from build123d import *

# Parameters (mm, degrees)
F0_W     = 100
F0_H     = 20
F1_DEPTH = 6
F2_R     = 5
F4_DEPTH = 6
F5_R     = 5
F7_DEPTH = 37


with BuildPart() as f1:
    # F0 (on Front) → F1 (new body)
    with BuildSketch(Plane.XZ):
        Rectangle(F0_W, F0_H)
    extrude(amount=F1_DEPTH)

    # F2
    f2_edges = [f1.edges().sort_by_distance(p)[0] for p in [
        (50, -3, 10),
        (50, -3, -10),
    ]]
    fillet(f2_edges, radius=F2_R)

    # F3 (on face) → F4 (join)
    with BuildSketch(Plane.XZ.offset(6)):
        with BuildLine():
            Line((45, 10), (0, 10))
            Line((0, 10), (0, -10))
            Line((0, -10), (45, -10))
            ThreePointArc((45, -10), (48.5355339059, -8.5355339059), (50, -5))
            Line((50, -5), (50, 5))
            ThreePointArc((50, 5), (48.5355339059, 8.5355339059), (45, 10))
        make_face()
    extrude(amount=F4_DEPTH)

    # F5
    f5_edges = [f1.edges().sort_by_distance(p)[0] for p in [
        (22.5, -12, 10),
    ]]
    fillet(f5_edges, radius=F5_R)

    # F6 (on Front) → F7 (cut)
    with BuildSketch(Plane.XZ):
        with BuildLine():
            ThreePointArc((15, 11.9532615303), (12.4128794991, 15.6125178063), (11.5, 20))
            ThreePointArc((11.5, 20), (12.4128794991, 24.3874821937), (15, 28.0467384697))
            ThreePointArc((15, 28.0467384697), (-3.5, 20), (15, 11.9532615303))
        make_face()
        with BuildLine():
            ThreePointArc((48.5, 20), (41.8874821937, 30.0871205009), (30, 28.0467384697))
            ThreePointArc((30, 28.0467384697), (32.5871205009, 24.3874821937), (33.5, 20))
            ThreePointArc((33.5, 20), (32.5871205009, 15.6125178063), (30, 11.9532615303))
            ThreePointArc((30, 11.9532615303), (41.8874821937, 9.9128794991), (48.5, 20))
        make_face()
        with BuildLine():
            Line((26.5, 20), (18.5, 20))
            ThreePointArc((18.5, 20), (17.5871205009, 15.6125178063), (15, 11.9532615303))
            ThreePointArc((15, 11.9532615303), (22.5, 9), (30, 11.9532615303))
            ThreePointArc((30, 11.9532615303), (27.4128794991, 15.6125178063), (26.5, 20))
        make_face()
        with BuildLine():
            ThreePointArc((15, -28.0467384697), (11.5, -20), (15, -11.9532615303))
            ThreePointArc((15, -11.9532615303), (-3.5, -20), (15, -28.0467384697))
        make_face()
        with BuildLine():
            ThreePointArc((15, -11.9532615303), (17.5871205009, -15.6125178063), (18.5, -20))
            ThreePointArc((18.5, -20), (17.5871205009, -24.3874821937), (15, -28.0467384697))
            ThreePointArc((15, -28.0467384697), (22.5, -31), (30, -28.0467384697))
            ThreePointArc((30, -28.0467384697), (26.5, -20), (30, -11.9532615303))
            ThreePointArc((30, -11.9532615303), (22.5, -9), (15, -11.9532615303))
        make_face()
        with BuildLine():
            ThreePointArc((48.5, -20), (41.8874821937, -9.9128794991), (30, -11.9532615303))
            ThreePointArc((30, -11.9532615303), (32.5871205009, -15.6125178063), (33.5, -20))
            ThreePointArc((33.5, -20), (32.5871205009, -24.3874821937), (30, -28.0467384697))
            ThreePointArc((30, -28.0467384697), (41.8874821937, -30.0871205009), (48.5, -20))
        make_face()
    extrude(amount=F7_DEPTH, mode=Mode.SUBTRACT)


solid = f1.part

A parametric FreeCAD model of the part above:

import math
import FreeCAD as App
import Part
import Sketcher
from FreeCAD import Vector


def edges_at(feature, points):
    """Names of the edges that pass closest to the given points."""
    edges = feature.Shape.Edges
    near = lambda p: min(range(len(edges)), key=lambda i: edges[i].distToShape(Part.Vertex(*p))[0])
    return sorted({f"Edge{near(p) + 1}" for p in points})

doc = App.newDocument("Part")
body = doc.addObject("PartDesign::Body", "Body")

sketch1 = body.newObject("Sketcher::SketchObject", "Sketch")
sketch1.AttachmentSupport = (doc.getObject("XZ_Plane"), [""])
sketch1.MapMode = "FlatFace"
sketch1.addGeometry(Part.LineSegment(Vector(-50, 10, 0), Vector(-50, -10, 0)), False)
sketch1.addGeometry(Part.LineSegment(Vector(-50, -10, 0), Vector(50, -10, 0)), False)
sketch1.addGeometry(Part.LineSegment(Vector(50, -10, 0), Vector(50, 10, 0)), False)
sketch1.addGeometry(Part.LineSegment(Vector(50, 10, 0), Vector(-50, 10, 0)), False)
sketch1.addConstraint(Sketcher.Constraint("Coincident", 0, 2, 1, 1))
sketch1.addConstraint(Sketcher.Constraint("Coincident", 1, 2, 2, 1))
sketch1.addConstraint(Sketcher.Constraint("Coincident", 2, 2, 3, 1))
sketch1.addConstraint(Sketcher.Constraint("Coincident", 3, 2, 0, 1))
sketch1.addConstraint(Sketcher.Constraint("Vertical", 0))
sketch1.addConstraint(Sketcher.Constraint("Horizontal", 1))
sketch1.addConstraint(Sketcher.Constraint("Vertical", 2))
sketch1.addConstraint(Sketcher.Constraint("Horizontal", 3))
sketch1.addConstraint(Sketcher.Constraint("Symmetric", 0, 2, 2, 2, -1, 1))
sketch1.addConstraint(Sketcher.Constraint("DistanceX", 1, 1, 1, 2, 100.0))
sketch1.addConstraint(Sketcher.Constraint("DistanceY", 0, 2, 0, 1, 20.0))
pad1 = body.newObject("PartDesign::Pad", "Pad")
pad1.Profile = sketch1
pad1.Length = 6
doc.recompute()

fillet = body.newObject("PartDesign::Fillet", "Fillet")
fillet.Base = (pad1, edges_at(pad1, [(50, -3, 10), (50, -3, -10)]))
fillet.Radius = 5

sketch2 = body.newObject("Sketcher::SketchObject", "Sketch001")
sketch2.AttachmentSupport = (doc.getObject("XZ_Plane"), [""])
sketch2.MapMode = "FlatFace"
sketch2.AttachmentOffset = App.Placement(Vector(0, 0, 6), App.Rotation())
sketch2.addGeometry(Part.LineSegment(Vector(45, 10, 0), Vector(0, 10, 0)), False)
sketch2.addGeometry(Part.LineSegment(Vector(0, 10, 0), Vector(0, -10, 0)), False)
sketch2.addGeometry(Part.LineSegment(Vector(0, -10, 0), Vector(45, -10, 0)), False)
sketch2.addGeometry(Part.ArcOfCircle(Part.Circle(Vector(45, -5, 0), Vector(0, 0, 1), 5), math.radians(-90), math.radians(0)), False)
sketch2.addGeometry(Part.LineSegment(Vector(50, -5, 0), Vector(50, 5, 0)), False)
sketch2.addGeometry(Part.ArcOfCircle(Part.Circle(Vector(45, 5, 0), Vector(0, 0, 1), 5), math.radians(0), math.radians(90)), False)
sketch2.addConstraint(Sketcher.Constraint("Coincident", 0, 2, 1, 1))
sketch2.addConstraint(Sketcher.Constraint("Coincident", 1, 2, 2, 1))
sketch2.addConstraint(Sketcher.Constraint("Tangent", 2, 2, 3, 1))
sketch2.addConstraint(Sketcher.Constraint("Tangent", 3, 2, 4, 1))
sketch2.addConstraint(Sketcher.Constraint("Tangent", 4, 2, 5, 1))
sketch2.addConstraint(Sketcher.Constraint("Tangent", 5, 2, 0, 1))
sketch2.addConstraint(Sketcher.Constraint("Horizontal", 0))
sketch2.addConstraint(Sketcher.Constraint("Vertical", 1))
sketch2.addConstraint(Sketcher.Constraint("Horizontal", 2))
sketch2.addConstraint(Sketcher.Constraint("Vertical", 4))
sketch2.addConstraint(Sketcher.Constraint("Equal", 3, 5))
sketch2.addConstraint(Sketcher.Constraint("Symmetric", 0, 2, 1, 2, -1, 1))
sketch2.addConstraint(Sketcher.Constraint("Radius", 3, 5.0))
sketch2.addConstraint(Sketcher.Constraint("DistanceX", 0, 2, 0, 1, 45.0))
sketch2.addConstraint(Sketcher.Constraint("DistanceY", 1, 2, 1, 1, 20.0))
pad2 = body.newObject("PartDesign::Pad", "Pad001")
pad2.Profile = sketch2
pad2.Length = 6
doc.recompute()

fillet2 = body.newObject("PartDesign::Fillet", "Fillet001")
fillet2.Base = (pad2, edges_at(pad2, [(22.5, -12, 10)]))
fillet2.Radius = 5

sketch3 = body.newObject("Sketcher::SketchObject", "Sketch002")
sketch3.AttachmentSupport = (doc.getObject("XZ_Plane"), [""])
sketch3.MapMode = "FlatFace"
sketch3.addGeometry(Part.ArcOfCircle(Part.Circle(Vector(22, 20, 0), Vector(0, 0, 1), 11), math.radians(180), math.radians(227)), False)
sketch3.addGeometry(Part.ArcOfCircle(Part.Circle(Vector(22, 20, 0), Vector(0, 0, 1), 11), math.radians(133), math.radians(180)), False)
sketch3.addGeometry(Part.ArcOfCircle(Part.Circle(Vector(8, 20, 0), Vector(0, 0, 1), 11), math.radians(47), math.radians(313)), False)
sketch3.addGeometry(Part.ArcOfCircle(Part.Circle(Vector(38, 20, 0), Vector(0, 0, 1), 11), math.radians(0), math.radians(133)), False)
sketch3.addGeometry(Part.ArcOfCircle(Part.Circle(Vector(22, 20, 0), Vector(0, 0, 1), 11), math.radians(0), math.radians(47)), False)
sketch3.addGeometry(Part.ArcOfCircle(Part.Circle(Vector(22, 20, 0), Vector(0, 0, 1), 11), math.radians(-47), math.radians(0)), False)
sketch3.addGeometry(Part.ArcOfCircle(Part.Circle(Vector(38, 20, 0), Vector(0, 0, 1), 11), math.radians(-133), math.radians(0)), False)
sketch3.addGeometry(Part.LineSegment(Vector(26, 20, 0), Vector(18, 20, 0)), False)
sketch3.addGeometry(Part.ArcOfCircle(Part.Circle(Vector(8, 20, 0), Vector(0, 0, 1), 11), math.radians(-47), math.radians(0)), False)
sketch3.addGeometry(Part.ArcOfCircle(Part.Circle(Vector(22, 20, 0), Vector(0, 0, 1), 11), math.radians(-133), math.radians(-47)), False)
sketch3.addGeometry(Part.ArcOfCircle(Part.Circle(Vector(38, 20, 0), Vector(0, 0, 1), 11), math.radians(180), math.radians(227)), False)
sketch3.addGeometry(Part.ArcOfCircle(Part.Circle(Vector(22, -20, 0), Vector(0, 0, 1), 11), math.radians(133), math.radians(227)), False)
sketch3.addGeometry(Part.ArcOfCircle(Part.Circle(Vector(8, -20, 0), Vector(0, 0, 1), 11), math.radians(47), math.radians(313)), False)
sketch3.addGeometry(Part.ArcOfCircle(Part.Circle(Vector(8, -20, 0), Vector(0, 0, 1), 11), math.radians(0), math.radians(47)), False)
sketch3.addGeometry(Part.ArcOfCircle(Part.Circle(Vector(8, -20, 0), Vector(0, 0, 1), 11), math.radians(-47), math.radians(0)), False)
sketch3.addGeometry(Part.ArcOfCircle(Part.Circle(Vector(22, -20, 0), Vector(0, 0, 1), 11), math.radians(-133), math.radians(-47)), False)
sketch3.addGeometry(Part.ArcOfCircle(Part.Circle(Vector(38, -20, 0), Vector(0, 0, 1), 11), math.radians(133), math.radians(227)), False)
sketch3.addGeometry(Part.ArcOfCircle(Part.Circle(Vector(22, -20, 0), Vector(0, 0, 1), 11), math.radians(47), math.radians(133)), False)
sketch3.addGeometry(Part.ArcOfCircle(Part.Circle(Vector(38, -20, 0), Vector(0, 0, 1), 11), math.radians(0), math.radians(133)), False)
sketch3.addGeometry(Part.ArcOfCircle(Part.Circle(Vector(22, -20, 0), Vector(0, 0, 1), 11), math.radians(0), math.radians(47)), False)
sketch3.addGeometry(Part.ArcOfCircle(Part.Circle(Vector(22, -20, 0), Vector(0, 0, 1), 11), math.radians(-47), math.radians(0)), False)
sketch3.addGeometry(Part.ArcOfCircle(Part.Circle(Vector(38, -20, 0), Vector(0, 0, 1), 11), math.radians(-133), math.radians(0)), False)
sketch3.addConstraint(Sketcher.Constraint("Tangent", 0, 1, 1, 2))
sketch3.addConstraint(Sketcher.Constraint("Coincident", 1, 1, 2, 1))
sketch3.addConstraint(Sketcher.Constraint("Coincident", 2, 2, 0, 2))
sketch3.addConstraint(Sketcher.Constraint("Coincident", 3, 2, 4, 2))
sketch3.addConstraint(Sketcher.Constraint("Tangent", 4, 1, 5, 2))
sketch3.addConstraint(Sketcher.Constraint("Coincident", 5, 1, 6, 1))
sketch3.addConstraint(Sketcher.Constraint("Tangent", 6, 2, 3, 1))
sketch3.addConstraint(Sketcher.Constraint("Coincident", 7, 2, 8, 2))
sketch3.addConstraint(Sketcher.Constraint("Coincident", 8, 1, 9, 1))
sketch3.addConstraint(Sketcher.Constraint("Coincident", 9, 2, 10, 2))
sketch3.addConstraint(Sketcher.Constraint("Coincident", 10, 1, 7, 1))
sketch3.addConstraint(Sketcher.Constraint("Coincident", 11, 1, 12, 1))
sketch3.addConstraint(Sketcher.Constraint("Coincident", 12, 2, 11, 2))
sketch3.addConstraint(Sketcher.Constraint("Tangent", 13, 1, 14, 2))
sketch3.addConstraint(Sketcher.Constraint("Coincident", 14, 1, 15, 1))
sketch3.addConstraint(Sketcher.Constraint("Coincident", 15, 2, 16, 2))
sketch3.addConstraint(Sketcher.Constraint("Coincident", 16, 1, 17, 1))
sketch3.addConstraint(Sketcher.Constraint("Coincident", 17, 2, 13, 2))
sketch3.addConstraint(Sketcher.Constraint("Coincident", 18, 2, 19, 2))
sketch3.addConstraint(Sketcher.Constraint("Tangent", 19, 1, 20, 2))
sketch3.addConstraint(Sketcher.Constraint("Coincident", 20, 1, 21, 1))
sketch3.addConstraint(Sketcher.Constraint("Tangent", 21, 2, 18, 1))
sketch3.addConstraint(Sketcher.Constraint("Horizontal", 7))
sketch3.addConstraint(Sketcher.Constraint("Coincident", 4, 3, 0, 3))
sketch3.addConstraint(Sketcher.Constraint("Coincident", 8, 3, 2, 3))
sketch3.addConstraint(Sketcher.Constraint("Coincident", 9, 3, 0, 3))
sketch3.addConstraint(Sketcher.Constraint("Coincident", 10, 3, 3, 3))
sketch3.addConstraint(Sketcher.Constraint("Coincident", 13, 3, 12, 3))
sketch3.addConstraint(Sketcher.Constraint("Coincident", 15, 3, 11, 3))
sketch3.addConstraint(Sketcher.Constraint("Coincident", 17, 3, 11, 3))
sketch3.addConstraint(Sketcher.Constraint("Coincident", 18, 3, 16, 3))
sketch3.addConstraint(Sketcher.Constraint("Coincident", 19, 3, 11, 3))
sketch3.addConstraint(Sketcher.Constraint("Coincident", 8, 1, 2, 2))
sketch3.addConstraint(Sketcher.Constraint("Coincident", 9, 2, 5, 1))
sketch3.addConstraint(Sketcher.Constraint("Coincident", 14, 1, 12, 2))
sketch3.addConstraint(Sketcher.Constraint("Coincident", 17, 2, 11, 1))
sketch3.addConstraint(Sketcher.Constraint("Coincident", 18, 2, 16, 1))
sketch3.addConstraint(Sketcher.Constraint("Coincident", 20, 1, 15, 2))
sketch3.addConstraint(Sketcher.Constraint("Equal", 0, 1))
sketch3.addConstraint(Sketcher.Constraint("Equal", 1, 2))
sketch3.addConstraint(Sketcher.Constraint("Equal", 2, 3))
sketch3.addConstraint(Sketcher.Constraint("Equal", 3, 4))
sketch3.addConstraint(Sketcher.Constraint("Equal", 5, 6))
sketch3.addConstraint(Sketcher.Constraint("Equal", 10, 11))
sketch3.addConstraint(Sketcher.Constraint("Equal", 11, 12))
sketch3.addConstraint(Sketcher.Constraint("Equal", 15, 16))
sketch3.addConstraint(Sketcher.Constraint("Symmetric", 0, 3, 11, 3, -1))
sketch3.addConstraint(Sketcher.Constraint("Symmetric", 2, 3, 12, 3, -1))
sketch3.addConstraint(Sketcher.Constraint("Symmetric", 3, 3, 16, 3, -1))
sketch3.addConstraint(Sketcher.Constraint("Horizontal", 1, 3, 2, 3))
sketch3.addConstraint(Sketcher.Constraint("Horizontal", 2, 3, 3, 3))
sketch3.addConstraint(Sketcher.Constraint("Horizontal", 10, 3, 0, 1))
sketch3.addConstraint(Sketcher.Constraint("Horizontal", 1, 1, 3, 2))
sketch3.addConstraint(Sketcher.Constraint("Horizontal", 0, 1, 4, 1))
sketch3.addConstraint(Sketcher.Constraint("Horizontal", 4, 1, 6, 2))
sketch3.addConstraint(Sketcher.Constraint("Horizontal", 6, 2, 7, 2))
sketch3.addConstraint(Sketcher.Constraint("Horizontal", 21, 3, 13, 1))
sketch3.addConstraint(Sketcher.Constraint("Horizontal", 13, 1, 19, 1))
sketch3.addConstraint(Sketcher.Constraint("Horizontal", 19, 1, 21, 2))
sketch3.addConstraint(Sketcher.Constraint("Radius", 0, 11.0))
sketch3.addConstraint(Sketcher.Constraint("DistanceX", 7, 2, 7, 1, 8.0))
sketch3.addConstraint(Sketcher.Constraint("DistanceY", -1, 1, 0, 3, 20.0))
sketch3.addConstraint(Sketcher.Constraint("DistanceX", -1, 1, 1, 1, 15.0))
pocket1 = body.newObject("PartDesign::Pocket", "Pocket")
pocket1.Profile = sketch3
pocket1.Length = 37
pocket1.Reversed = True

doc.recompute()
